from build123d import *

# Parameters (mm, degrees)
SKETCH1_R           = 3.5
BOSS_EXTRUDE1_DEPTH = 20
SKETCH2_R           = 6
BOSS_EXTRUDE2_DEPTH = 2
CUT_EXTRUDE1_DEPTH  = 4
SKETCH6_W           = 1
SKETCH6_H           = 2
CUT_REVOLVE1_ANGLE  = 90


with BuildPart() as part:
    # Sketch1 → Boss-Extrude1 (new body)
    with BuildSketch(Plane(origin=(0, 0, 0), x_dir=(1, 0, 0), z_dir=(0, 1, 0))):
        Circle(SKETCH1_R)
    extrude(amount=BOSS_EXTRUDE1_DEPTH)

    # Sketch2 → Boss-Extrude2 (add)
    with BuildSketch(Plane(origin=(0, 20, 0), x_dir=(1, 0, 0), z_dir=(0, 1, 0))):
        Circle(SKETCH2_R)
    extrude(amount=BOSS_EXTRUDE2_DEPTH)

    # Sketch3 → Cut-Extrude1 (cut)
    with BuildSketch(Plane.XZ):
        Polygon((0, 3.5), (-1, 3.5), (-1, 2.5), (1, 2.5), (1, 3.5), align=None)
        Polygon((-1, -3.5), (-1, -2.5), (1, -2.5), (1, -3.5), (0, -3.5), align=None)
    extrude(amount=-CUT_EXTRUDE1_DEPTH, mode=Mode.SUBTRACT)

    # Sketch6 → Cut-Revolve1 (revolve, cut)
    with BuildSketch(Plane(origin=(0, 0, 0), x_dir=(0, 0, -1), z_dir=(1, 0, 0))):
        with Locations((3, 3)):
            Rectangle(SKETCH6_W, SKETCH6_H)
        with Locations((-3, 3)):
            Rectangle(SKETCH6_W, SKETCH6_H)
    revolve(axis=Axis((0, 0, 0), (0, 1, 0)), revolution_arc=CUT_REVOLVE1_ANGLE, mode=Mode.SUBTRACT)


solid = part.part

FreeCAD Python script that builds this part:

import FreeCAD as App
import Part
import Sketcher

V = App.Vector

doc = App.newDocument("Part")
body = doc.addObject("PartDesign::Body", "Body")

# Sketch on XZ plane
sketch1 = body.newObject("Sketcher::SketchObject", "Sketch")
sketch1.AttachmentSupport = (doc.getObject("XZ_Plane"), [""])
sketch1.MapMode = "FlatFace"
sketch1.addGeometry(Part.Circle(V(0, 0, 0), V(0, 0, 1), 3.5), False)
sketch1.addConstraint(Sketcher.Constraint("Coincident", 0, 3, -1, 1))
sketch1.addConstraint(Sketcher.Constraint("Diameter", 0, 7.0))
pad1 = body.newObject("PartDesign::Pad", "Pad")
pad1.Profile = sketch1
pad1.Length = 20
pad1.Reversed = True

# Sketch on XZ plane
sketch2 = body.newObject("Sketcher::SketchObject", "Sketch001")
sketch2.AttachmentSupport = (doc.getObject("XZ_Plane"), [""])
sketch2.MapMode = "FlatFace"
sketch2.AttachmentOffset = App.Placement(V(0, 0, -20), App.Rotation())
sketch2.addGeometry(Part.Circle(V(0, 0, 0), V(0, 0, 1), 6), False)
sketch2.addConstraint(Sketcher.Constraint("Coincident", 0, 3, -1, 1))
sketch2.addConstraint(Sketcher.Constraint("Diameter", 0, 12.0))
pad2 = body.newObject("PartDesign::Pad", "Pad001")
pad2.Profile = sketch2
pad2.Length = 2
pad2.Reversed = True

# Sketch on XZ plane
sketch3 = body.newObject("Sketcher::SketchObject", "Sketch002")
sketch3.AttachmentSupport = (doc.getObject("XZ_Plane"), [""])
sketch3.MapMode = "FlatFace"
sketch3.addGeometry(Part.LineSegment(V(-1, 3.5, 0), V(-1, 2.5, 0)), False)
sketch3.addGeometry(Part.LineSegment(V(-1, 2.5, 0), V(1, 2.5, 0)), False)
sketch3.addGeometry(Part.LineSegment(V(1, 2.5, 0), V(1, 3.5, 0)), False)
sketch3.addGeometry(Part.LineSegment(V(1, 3.5, 0), V(-1, 3.5, 0)), False)
sketch3.addGeometry(Part.LineSegment(V(-1, -2.5, 0), V(-1, -3.5, 0)), False)
sketch3.addGeometry(Part.LineSegment(V(-1, -3.5, 0), V(1, -3.5, 0)), False)
sketch3.addGeometry(Part.LineSegment(V(1, -3.5, 0), V(1, -2.5, 0)), False)
sketch3.addGeometry(Part.LineSegment(V(1, -2.5, 0), V(-1, -2.5, 0)), False)
sketch3.addConstraint(Sketcher.Constraint("Coincident", 0, 2, 1, 1))
sketch3.addConstraint(Sketcher.Constraint("Coincident", 1, 2, 2, 1))
sketch3.addConstraint(Sketcher.Constraint("Coincident", 2, 2, 3, 1))
sketch3.addConstraint(Sketcher.Constraint("Coincident", 3, 2, 0, 1))
sketch3.addConstraint(Sketcher.Constraint("Coincident", 4, 2, 5, 1))
sketch3.addConstraint(Sketcher.Constraint("Coincident", 5, 2, 6, 1))
sketch3.addConstraint(Sketcher.Constraint("Coincident", 6, 2, 7, 1))
sketch3.addConstraint(Sketcher.Constraint("Coincident", 7, 2, 4, 1))
sketch3.addConstraint(Sketcher.Constraint("Vertical", 0))
sketch3.addConstraint(Sketcher.Constraint("Horizontal", 1))
sketch3.addConstraint(Sketcher.Constraint("Vertical", 2))
sketch3.addConstraint(Sketcher.Constraint("Horizontal", 3))
sketch3.addConstraint(Sketcher.Constraint("Vertical", 4))
sketch3.addConstraint(Sketcher.Constraint("Horizontal", 5))
sketch3.addConstraint(Sketcher.Constraint("Vertical", 6))
sketch3.addConstraint(Sketcher.Constraint("Horizontal", 7))
sketch3.addConstraint(Sketcher.Constraint("Symmetric", 2, 2, 4, 2, -1, 1))
sketch3.addConstraint(Sketcher.Constraint("Symmetric", 0, 2, 6, 2, -1, 1))
sketch3.addConstraint(Sketcher.Constraint("Vertical", 3, 2, 4, 2))
sketch3.addConstraint(Sketcher.Constraint("DistanceX", 1, 1, 1, 2, 2.0))
sketch3.addConstraint(Sketcher.Constraint("DistanceY", 0, 2, 0, 1, 1.0))
sketch3.addConstraint(Sketcher.Constraint("DistanceY", 4, 2, 0, 2, 6.0))
pocket1 = body.newObject("PartDesign::Pocket", "Pocket")
pocket1.Profile = sketch3
pocket1.Length = 4

# Sketch on YZ plane
sketch4 = body.newObject("Sketcher::SketchObject", "Sketch003")
sketch4.AttachmentSupport = (doc.getObject("YZ_Plane"), [""])
sketch4.MapMode = "FlatFace"
sketch4.addGeometry(Part.LineSegment(V(4, -2.5, 0), V(2, -2.5, 0)), False)
sketch4.addGeometry(Part.LineSegment(V(2, -2.5, 0), V(2, -3.5, 0)), False)
sketch4.addGeometry(Part.LineSegment(V(2, -3.5, 0), V(4, -3.5, 0)), False)
sketch4.addGeometry(Part.LineSegment(V(4, -3.5, 0), V(4, -2.5, 0)), False)
sketch4.addGeometry(Part.LineSegment(V(4, 3.5, 0), V(2, 3.5, 0)), False)
sketch4.addGeometry(Part.LineSegment(V(2, 3.5, 0), V(2, 2.5, 0)), False)
sketch4.addGeometry(Part.LineSegment(V(2, 2.5, 0), V(4, 2.5, 0)), False)
sketch4.addGeometry(Part.LineSegment(V(4, 2.5, 0), V(4, 3.5, 0)), False)
sketch4.addConstraint(Sketcher.Constraint("Coincident", 0, 2, 1, 1))
sketch4.addConstraint(Sketcher.Constraint("Coincident", 1, 2, 2, 1))
sketch4.addConstraint(Sketcher.Constraint("Coincident", 2, 2, 3, 1))
sketch4.addConstraint(Sketcher.Constraint("Coincident", 3, 2, 0, 1))
sketch4.addConstraint(Sketcher.Constraint("Coincident", 4, 2, 5, 1))
sketch4.addConstraint(Sketcher.Constraint("Coincident", 5, 2, 6, 1))
sketch4.addConstraint(Sketcher.Constraint("Coincident", 6, 2, 7, 1))
sketch4.addConstraint(Sketcher.Constraint("Coincident", 7, 2, 4, 1))
sketch4.addConstraint(Sketcher.Constraint("Horizontal", 0))
sketch4.addConstraint(Sketcher.Constraint("Vertical", 1))
sketch4.addConstraint(Sketcher.Constraint("Horizontal", 2))
sketch4.addConstraint(Sketcher.Constraint("Vertical", 3))
sketch4.addConstraint(Sketcher.Constraint("Horizontal", 4))
sketch4.addConstraint(Sketcher.Constraint("Vertical", 5))
sketch4.addConstraint(Sketcher.Constraint("Horizontal", 6))
sketch4.addConstraint(Sketcher.Constraint("Vertical", 7))
sketch4.addConstraint(Sketcher.Constraint("Symmetric", 1, 2, 4, 2, -1))
sketch4.addConstraint(Sketcher.Constraint("Symmetric", 3, 2, 6, 2, -1))
sketch4.addConstraint(Sketcher.Constraint("DistanceX", 0, 2, 0, 1, 2.0))
sketch4.addConstraint(Sketcher.Constraint("DistanceY", 1, 2, 1, 1, 1.0))
sketch4.addConstraint(Sketcher.Constraint("DistanceX", -1, 1, 0, 2, 2.0))
sketch4.addConstraint(Sketcher.Constraint("DistanceY", 0, 2, 4, 2, 6.0))
groove = body.newObject("PartDesign::Groove", "Groove")
groove.Profile = sketch4
groove.ReferenceAxis = (sketch4, ["H_Axis"])
groove.Angle = 90

doc.recompute()
